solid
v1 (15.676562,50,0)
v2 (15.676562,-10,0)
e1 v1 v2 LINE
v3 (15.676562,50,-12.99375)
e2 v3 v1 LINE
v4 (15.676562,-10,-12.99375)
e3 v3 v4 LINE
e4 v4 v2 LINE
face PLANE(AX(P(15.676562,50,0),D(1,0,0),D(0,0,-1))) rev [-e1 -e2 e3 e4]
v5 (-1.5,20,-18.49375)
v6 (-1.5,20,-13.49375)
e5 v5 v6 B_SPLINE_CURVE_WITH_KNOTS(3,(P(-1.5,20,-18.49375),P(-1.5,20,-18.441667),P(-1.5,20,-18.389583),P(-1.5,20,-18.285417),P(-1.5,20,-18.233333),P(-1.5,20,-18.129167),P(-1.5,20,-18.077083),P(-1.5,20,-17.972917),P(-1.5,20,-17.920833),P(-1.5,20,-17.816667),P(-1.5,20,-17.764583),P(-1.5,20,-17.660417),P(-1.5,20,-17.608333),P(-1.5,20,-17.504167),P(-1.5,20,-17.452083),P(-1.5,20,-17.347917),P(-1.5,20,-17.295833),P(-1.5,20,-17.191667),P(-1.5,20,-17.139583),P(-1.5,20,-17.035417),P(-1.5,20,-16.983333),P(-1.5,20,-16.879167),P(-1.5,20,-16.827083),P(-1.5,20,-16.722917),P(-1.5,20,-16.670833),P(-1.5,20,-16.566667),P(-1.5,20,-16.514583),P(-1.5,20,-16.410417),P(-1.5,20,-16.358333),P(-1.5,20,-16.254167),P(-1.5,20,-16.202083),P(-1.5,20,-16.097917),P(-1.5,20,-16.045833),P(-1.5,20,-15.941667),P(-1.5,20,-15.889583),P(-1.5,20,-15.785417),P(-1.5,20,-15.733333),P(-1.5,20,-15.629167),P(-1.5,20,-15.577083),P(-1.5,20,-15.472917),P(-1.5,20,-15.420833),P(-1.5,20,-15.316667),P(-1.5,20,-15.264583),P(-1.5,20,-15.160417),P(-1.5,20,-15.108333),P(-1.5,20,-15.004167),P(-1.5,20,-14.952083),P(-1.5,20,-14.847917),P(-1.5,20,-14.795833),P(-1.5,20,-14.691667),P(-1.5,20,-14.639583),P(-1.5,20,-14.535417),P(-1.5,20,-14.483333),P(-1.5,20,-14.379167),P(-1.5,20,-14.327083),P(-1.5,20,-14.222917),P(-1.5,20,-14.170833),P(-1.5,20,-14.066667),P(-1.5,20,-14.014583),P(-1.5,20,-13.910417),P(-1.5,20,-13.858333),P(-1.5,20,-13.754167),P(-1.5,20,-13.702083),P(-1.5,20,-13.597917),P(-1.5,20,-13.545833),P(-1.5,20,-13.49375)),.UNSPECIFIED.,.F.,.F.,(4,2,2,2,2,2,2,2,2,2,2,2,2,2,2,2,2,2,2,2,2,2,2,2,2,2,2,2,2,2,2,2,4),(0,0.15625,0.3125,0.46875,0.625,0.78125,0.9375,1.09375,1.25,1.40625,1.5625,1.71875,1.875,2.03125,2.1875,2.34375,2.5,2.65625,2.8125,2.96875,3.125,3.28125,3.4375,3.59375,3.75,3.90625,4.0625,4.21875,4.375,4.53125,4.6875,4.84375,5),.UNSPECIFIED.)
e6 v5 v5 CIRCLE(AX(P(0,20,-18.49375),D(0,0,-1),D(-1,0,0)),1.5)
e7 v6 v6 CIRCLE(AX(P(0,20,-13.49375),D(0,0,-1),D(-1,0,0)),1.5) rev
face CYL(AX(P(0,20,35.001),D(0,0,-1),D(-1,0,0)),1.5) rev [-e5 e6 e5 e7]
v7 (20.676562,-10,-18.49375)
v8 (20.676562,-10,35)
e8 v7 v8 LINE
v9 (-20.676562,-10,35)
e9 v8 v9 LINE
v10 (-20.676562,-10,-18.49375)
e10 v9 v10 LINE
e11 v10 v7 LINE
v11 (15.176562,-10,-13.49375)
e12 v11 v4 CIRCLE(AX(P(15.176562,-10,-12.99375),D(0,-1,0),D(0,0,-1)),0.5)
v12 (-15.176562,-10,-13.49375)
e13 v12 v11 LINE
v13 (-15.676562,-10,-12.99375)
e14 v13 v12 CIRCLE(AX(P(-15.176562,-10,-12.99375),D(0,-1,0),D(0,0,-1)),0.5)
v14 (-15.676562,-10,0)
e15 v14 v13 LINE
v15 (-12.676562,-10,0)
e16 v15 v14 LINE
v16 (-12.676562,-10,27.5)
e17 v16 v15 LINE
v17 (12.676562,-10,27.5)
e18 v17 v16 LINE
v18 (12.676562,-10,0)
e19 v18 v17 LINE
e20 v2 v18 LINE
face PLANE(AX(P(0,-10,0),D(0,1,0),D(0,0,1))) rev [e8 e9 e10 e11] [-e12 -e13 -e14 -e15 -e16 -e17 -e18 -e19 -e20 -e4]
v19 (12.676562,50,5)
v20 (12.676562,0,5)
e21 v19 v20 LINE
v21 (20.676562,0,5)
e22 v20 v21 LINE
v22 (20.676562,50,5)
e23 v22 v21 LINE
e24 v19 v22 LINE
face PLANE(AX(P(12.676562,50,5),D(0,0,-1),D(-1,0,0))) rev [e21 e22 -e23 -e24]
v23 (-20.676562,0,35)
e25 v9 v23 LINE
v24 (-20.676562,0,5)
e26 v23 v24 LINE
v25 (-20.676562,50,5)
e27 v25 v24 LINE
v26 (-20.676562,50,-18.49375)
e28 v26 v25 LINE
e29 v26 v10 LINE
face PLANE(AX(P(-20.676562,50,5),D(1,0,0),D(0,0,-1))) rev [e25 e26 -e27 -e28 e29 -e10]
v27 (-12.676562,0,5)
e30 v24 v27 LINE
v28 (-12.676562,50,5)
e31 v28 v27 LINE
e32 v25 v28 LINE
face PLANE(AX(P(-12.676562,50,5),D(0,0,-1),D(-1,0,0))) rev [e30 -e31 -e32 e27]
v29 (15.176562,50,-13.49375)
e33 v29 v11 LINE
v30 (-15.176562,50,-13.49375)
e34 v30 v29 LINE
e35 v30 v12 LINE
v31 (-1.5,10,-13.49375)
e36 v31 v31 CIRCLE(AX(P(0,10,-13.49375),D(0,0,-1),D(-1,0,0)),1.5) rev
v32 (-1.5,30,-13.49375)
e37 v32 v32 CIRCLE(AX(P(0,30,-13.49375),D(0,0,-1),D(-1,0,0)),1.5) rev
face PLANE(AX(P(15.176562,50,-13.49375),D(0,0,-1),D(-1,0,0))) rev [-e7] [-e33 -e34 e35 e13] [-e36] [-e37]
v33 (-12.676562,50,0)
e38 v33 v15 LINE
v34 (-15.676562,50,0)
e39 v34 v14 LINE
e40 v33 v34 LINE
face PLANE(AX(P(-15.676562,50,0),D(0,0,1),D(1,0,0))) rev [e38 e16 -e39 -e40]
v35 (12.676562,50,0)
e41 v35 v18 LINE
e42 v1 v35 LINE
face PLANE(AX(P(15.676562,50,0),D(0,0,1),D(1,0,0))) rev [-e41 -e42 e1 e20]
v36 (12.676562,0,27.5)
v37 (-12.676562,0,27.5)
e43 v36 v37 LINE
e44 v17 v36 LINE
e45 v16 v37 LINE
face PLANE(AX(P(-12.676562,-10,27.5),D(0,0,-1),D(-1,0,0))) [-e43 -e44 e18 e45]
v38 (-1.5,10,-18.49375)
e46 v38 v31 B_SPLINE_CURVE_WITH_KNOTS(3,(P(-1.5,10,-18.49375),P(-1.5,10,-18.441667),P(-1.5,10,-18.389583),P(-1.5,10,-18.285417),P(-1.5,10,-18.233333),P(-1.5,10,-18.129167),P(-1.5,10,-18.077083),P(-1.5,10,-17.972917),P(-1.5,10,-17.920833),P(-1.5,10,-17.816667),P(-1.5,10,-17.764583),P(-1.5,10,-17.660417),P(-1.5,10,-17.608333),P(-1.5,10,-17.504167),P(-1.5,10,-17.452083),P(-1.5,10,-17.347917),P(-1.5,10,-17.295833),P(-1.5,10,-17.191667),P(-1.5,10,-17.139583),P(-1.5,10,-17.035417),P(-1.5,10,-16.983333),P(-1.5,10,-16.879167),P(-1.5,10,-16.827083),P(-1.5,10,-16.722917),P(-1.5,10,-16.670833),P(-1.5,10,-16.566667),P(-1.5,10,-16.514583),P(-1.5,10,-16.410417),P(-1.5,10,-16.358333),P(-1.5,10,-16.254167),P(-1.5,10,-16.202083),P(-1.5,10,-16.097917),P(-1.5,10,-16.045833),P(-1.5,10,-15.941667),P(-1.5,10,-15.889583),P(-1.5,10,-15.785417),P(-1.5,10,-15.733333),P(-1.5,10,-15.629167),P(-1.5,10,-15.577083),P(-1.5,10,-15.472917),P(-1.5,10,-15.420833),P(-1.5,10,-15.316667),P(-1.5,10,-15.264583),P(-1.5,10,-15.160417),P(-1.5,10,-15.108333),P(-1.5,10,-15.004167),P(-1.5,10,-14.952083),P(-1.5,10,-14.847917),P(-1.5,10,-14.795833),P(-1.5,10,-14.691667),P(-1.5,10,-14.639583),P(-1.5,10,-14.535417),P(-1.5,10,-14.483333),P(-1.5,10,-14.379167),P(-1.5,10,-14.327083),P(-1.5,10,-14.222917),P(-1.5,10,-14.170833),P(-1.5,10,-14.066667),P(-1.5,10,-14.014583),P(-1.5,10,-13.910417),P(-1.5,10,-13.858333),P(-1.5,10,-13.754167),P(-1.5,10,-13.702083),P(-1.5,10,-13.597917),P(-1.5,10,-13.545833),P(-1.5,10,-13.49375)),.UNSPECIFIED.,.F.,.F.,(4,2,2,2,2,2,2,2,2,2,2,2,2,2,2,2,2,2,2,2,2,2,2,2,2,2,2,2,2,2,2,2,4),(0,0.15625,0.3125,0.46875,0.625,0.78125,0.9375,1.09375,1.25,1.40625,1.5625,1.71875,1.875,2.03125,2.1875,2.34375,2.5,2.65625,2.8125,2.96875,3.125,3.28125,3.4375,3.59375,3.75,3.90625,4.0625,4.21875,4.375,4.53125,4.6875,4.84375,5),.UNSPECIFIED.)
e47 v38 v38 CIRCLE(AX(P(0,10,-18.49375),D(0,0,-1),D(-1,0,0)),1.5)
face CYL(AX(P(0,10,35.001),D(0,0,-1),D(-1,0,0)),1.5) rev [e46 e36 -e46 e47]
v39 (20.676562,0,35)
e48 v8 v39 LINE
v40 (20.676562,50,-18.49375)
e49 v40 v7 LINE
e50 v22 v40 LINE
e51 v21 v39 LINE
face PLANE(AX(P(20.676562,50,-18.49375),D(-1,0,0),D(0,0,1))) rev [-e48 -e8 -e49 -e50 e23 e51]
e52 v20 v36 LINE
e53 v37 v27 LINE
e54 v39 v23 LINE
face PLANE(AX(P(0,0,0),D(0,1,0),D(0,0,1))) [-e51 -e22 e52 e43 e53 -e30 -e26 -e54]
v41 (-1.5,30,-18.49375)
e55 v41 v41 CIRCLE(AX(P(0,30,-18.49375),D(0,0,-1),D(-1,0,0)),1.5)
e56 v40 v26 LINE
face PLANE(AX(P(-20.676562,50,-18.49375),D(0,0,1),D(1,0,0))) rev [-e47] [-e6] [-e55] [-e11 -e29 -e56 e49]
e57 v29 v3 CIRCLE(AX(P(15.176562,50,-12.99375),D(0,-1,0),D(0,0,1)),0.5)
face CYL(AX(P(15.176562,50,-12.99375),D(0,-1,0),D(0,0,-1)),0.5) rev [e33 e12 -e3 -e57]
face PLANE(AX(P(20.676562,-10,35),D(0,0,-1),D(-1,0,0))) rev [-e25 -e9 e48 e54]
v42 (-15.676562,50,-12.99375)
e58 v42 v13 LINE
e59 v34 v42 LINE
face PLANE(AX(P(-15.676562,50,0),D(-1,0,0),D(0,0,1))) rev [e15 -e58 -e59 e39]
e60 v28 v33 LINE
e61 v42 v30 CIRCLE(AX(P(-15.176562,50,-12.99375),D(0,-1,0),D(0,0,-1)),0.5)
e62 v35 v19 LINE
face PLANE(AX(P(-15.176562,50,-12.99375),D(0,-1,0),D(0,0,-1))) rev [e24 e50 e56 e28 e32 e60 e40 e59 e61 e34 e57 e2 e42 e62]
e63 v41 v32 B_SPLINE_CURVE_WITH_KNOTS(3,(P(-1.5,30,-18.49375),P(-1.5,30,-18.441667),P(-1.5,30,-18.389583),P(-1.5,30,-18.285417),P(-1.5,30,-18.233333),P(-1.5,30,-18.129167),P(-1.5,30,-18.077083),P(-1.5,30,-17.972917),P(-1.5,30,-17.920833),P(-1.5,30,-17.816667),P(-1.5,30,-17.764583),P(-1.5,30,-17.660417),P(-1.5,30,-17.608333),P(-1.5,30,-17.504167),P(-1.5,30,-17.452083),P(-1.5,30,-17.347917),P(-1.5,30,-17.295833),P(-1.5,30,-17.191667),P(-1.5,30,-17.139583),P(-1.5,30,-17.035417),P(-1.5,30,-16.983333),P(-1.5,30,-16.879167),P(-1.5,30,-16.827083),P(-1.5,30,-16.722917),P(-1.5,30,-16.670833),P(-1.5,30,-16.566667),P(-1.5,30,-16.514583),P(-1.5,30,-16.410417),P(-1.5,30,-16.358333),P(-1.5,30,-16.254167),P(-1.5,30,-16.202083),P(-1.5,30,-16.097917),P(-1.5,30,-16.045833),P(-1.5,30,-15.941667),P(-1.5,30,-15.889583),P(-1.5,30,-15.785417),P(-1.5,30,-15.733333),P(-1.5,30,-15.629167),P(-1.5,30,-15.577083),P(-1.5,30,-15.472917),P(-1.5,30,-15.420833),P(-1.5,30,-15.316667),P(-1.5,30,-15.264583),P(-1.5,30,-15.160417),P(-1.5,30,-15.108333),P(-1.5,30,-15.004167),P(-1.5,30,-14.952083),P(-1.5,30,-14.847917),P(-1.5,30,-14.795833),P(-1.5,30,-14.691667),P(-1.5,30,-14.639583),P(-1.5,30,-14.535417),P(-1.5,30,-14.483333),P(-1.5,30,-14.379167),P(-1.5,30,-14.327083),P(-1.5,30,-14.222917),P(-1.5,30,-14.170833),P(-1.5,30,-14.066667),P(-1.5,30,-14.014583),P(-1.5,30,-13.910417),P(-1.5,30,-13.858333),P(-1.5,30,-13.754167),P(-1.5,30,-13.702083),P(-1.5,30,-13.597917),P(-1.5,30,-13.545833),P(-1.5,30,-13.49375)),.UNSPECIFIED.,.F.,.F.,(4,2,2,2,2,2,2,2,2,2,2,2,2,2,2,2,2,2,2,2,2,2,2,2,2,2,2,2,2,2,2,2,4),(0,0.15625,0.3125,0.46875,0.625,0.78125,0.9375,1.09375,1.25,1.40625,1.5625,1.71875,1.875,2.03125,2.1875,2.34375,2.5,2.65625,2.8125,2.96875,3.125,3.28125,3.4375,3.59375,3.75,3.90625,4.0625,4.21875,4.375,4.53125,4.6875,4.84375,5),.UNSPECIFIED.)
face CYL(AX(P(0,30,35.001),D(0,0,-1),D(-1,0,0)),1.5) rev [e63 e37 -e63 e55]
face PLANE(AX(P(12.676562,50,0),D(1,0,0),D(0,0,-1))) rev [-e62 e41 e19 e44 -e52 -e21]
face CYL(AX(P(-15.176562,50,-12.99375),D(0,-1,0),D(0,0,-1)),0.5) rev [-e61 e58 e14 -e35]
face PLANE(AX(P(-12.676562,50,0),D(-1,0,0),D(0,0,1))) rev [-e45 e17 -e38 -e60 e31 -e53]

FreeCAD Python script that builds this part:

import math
import FreeCAD as App
import Part
import Sketcher
from FreeCAD import Vector

doc = App.newDocument("Part")
body = doc.addObject("PartDesign::Body", "Body")

sketch1 = body.newObject("Sketcher::SketchObject", "Sketch")
sketch1.AttachmentSupport = (doc.getObject("XZ_Plane"), [""])
sketch1.MapMode = "FlatFace"
sketch1.addGeometry([
    Part.LineSegment(Vector(15.676562, -12.99375, 0), Vector(15.676562, 0, 0)),
    Part.LineSegment(Vector(15.676562, 0, 0), Vector(12.676562, 0, 0)),
    Part.LineSegment(Vector(12.676562, 0, 0), Vector(12.676562, 5, 0)),
    Part.LineSegment(Vector(12.676562, 5, 0), Vector(20.676562, 5, 0)),
    Part.LineSegment(Vector(20.676562, 5, 0), Vector(20.676562, -18.49375, 0)),
    Part.LineSegment(Vector(20.676562, -18.49375, 0), Vector(-20.676562, -18.49375, 0)),
    Part.LineSegment(Vector(-20.676562, -18.49375, 0), Vector(-20.676562, 5, 0)),
    Part.LineSegment(Vector(-20.676562, 5, 0), Vector(-12.676562, 5, 0)),
    Part.LineSegment(Vector(-12.676562, 5, 0), Vector(-12.676562, 0, 0)),
    Part.LineSegment(Vector(-12.676562, 0, 0), Vector(-15.676562, 0, 0)),
    Part.LineSegment(Vector(-15.676562, 0, 0), Vector(-15.676562, -12.99375, 0)),
    Part.ArcOfCircle(Part.Circle(Vector(-15.176563, -12.99375, 0), Vector(0, 0, 1), 0.5), math.radians(180), math.radians(270)),
    Part.LineSegment(Vector(-15.176562, -13.49375, 0), Vector(15.176562, -13.49375, 0)),
    Part.ArcOfCircle(Part.Circle(Vector(15.176563, -12.99375, 0), Vector(0, 0, 1), 0.5), math.radians(-90), math.radians(0)),
], False)
sketch1.addConstraint([
    Sketcher.Constraint("Coincident", 0, 2, 1, 1),
    Sketcher.Constraint("Coincident", 1, 2, 2, 1),
    Sketcher.Constraint("Coincident", 2, 2, 3, 1),
    Sketcher.Constraint("Coincident", 3, 2, 4, 1),
    Sketcher.Constraint("Coincident", 4, 2, 5, 1),
    Sketcher.Constraint("Coincident", 5, 2, 6, 1),
    Sketcher.Constraint("Coincident", 6, 2, 7, 1),
    Sketcher.Constraint("Coincident", 7, 2, 8, 1),
    Sketcher.Constraint("Coincident", 8, 2, 9, 1),
    Sketcher.Constraint("Coincident", 9, 2, 10, 1),
    Sketcher.Constraint("Tangent", 10, 2, 11, 1),
    Sketcher.Constraint("Tangent", 11, 2, 12, 1),
    Sketcher.Constraint("Tangent", 12, 2, 13, 1),
    Sketcher.Constraint("Tangent", 13, 2, 0, 1),
    Sketcher.Constraint("Vertical", 0),
    Sketcher.Constraint("Horizontal", 1),
    Sketcher.Constraint("Vertical", 2),
    Sketcher.Constraint("Horizontal", 3),
    Sketcher.Constraint("Vertical", 4),
    Sketcher.Constraint("Horizontal", 5),
    Sketcher.Constraint("Vertical", 6),
    Sketcher.Constraint("Horizontal", 7),
    Sketcher.Constraint("Vertical", 8),
    Sketcher.Constraint("Horizontal", 9),
    Sketcher.Constraint("Vertical", 10),
    Sketcher.Constraint("Horizontal", 12),
    Sketcher.Constraint("Equal", 11, 13),
    Sketcher.Constraint("Symmetric", 1, 2, 8, 2, -1, 1),
    Sketcher.Constraint("Symmetric", 3, 2, 6, 2, -2),
    Sketcher.Constraint("Symmetric", 0, 2, 9, 2, -2),
    Sketcher.Constraint("Radius", 11, 0.5),
    Sketcher.Constraint("DistanceX", 1, 2, 1, 1, 3.0),
    Sketcher.Constraint("DistanceX", 3, 1, 3, 2, 8.0),
    Sketcher.Constraint("DistanceY", 2, 1, 2, 2, 5.0),
    Sketcher.Constraint("DistanceY", 5, 2, 11, 2, 5.0),
    Sketcher.Constraint("DistanceY", 0, 1, 0, 2, 12.99375),
    Sketcher.Constraint("DistanceX", 5, 2, 5, 1, 41.353125),
])
pad1 = body.newObject("PartDesign::Pad", "Pad")
pad1.Profile = sketch1
pad1.Length = 50
pad1.Reversed = True

sketch2 = body.newObject("Sketcher::SketchObject", "Sketch001")
sketch2.AttachmentSupport = (doc.getObject("XZ_Plane"), [""])
sketch2.MapMode = "FlatFace"
sketch2.AttachmentOffset = App.Placement(Vector(0, 0, 10), App.Rotation())
sketch2.addGeometry([
    Part.LineSegment(Vector(-20.676562, 35, 0), Vector(-20.676562, -18.49375, 0)),
    Part.LineSegment(Vector(-20.676562, -18.49375, 0), Vector(20.676562, -18.49375, 0)),
    Part.LineSegment(Vector(20.676562, -18.49375, 0), Vector(20.676562, 35, 0)),
    Part.LineSegment(Vector(20.676562, 35, 0), Vector(-20.676562, 35, 0)),
    Part.LineSegment(Vector(-12.676562, 0, 0), Vector(-12.676562, 27.5, 0)),
    Part.LineSegment(Vector(-12.676562, 27.5, 0), Vector(12.676562, 27.5, 0)),
    Part.LineSegment(Vector(12.676562, 27.5, 0), Vector(12.676562, 0, 0)),
    Part.LineSegment(Vector(12.676562, 0, 0), Vector(15.676562, 0, 0)),
    Part.LineSegment(Vector(15.676562, 0, 0), Vector(15.676562, -12.99375, 0)),
    Part.ArcOfCircle(Part.Circle(Vector(15.176563, -12.99375, 0), Vector(0, 0, 1), 0.5), math.radians(-90), math.radians(0)),
    Part.LineSegment(Vector(15.176562, -13.49375, 0), Vector(-15.176562, -13.49375, 0)),
    Part.ArcOfCircle(Part.Circle(Vector(-15.176563, -12.99375, 0), Vector(0, 0, 1), 0.5), math.radians(180), math.radians(270)),
    Part.LineSegment(Vector(-15.676562, -12.99375, 0), Vector(-15.676562, 0, 0)),
    Part.LineSegment(Vector(-15.676562, 0, 0), Vector(-12.676562, 0, 0)),
], False)
sketch2.addConstraint([
    Sketcher.Constraint("Coincident", 0, 2, 1, 1),
    Sketcher.Constraint("Coincident", 1, 2, 2, 1),
    Sketcher.Constraint("Coincident", 2, 2, 3, 1),
    Sketcher.Constraint("Coincident", 3, 2, 0, 1),
    Sketcher.Constraint("Coincident", 4, 2, 5, 1),
    Sketcher.Constraint("Coincident", 5, 2, 6, 1),
    Sketcher.Constraint("Coincident", 6, 2, 7, 1),
    Sketcher.Constraint("Coincident", 7, 2, 8, 1),
    Sketcher.Constraint("Tangent", 8, 2, 9, 2),
    Sketcher.Constraint("Tangent", 9, 1, 10, 1),
    Sketcher.Constraint("Tangent", 10, 2, 11, 2),
    Sketcher.Constraint("Tangent", 11, 1, 12, 1),
    Sketcher.Constraint("Coincident", 12, 2, 13, 1),
    Sketcher.Constraint("Coincident", 13, 2, 4, 1),
    Sketcher.Constraint("Vertical", 0),
    Sketcher.Constraint("Horizontal", 1),
    Sketcher.Constraint("Vertical", 2),
    Sketcher.Constraint("Horizontal", 3),
    Sketcher.Constraint("Vertical", 4),
    Sketcher.Constraint("Horizontal", 5),
    Sketcher.Constraint("Vertical", 6),
    Sketcher.Constraint("Horizontal", 7),
    Sketcher.Constraint("Vertical", 8),
    Sketcher.Constraint("Horizontal", 10),
    Sketcher.Constraint("Vertical", 12),
    Sketcher.Constraint("Horizontal", 13),
    Sketcher.Constraint("Equal", 9, 11),
    Sketcher.Constraint("Symmetric", 7, 2, 12, 2, -1, 1),
    Sketcher.Constraint("Symmetric", 6, 2, 13, 2, -2),
    Sketcher.Constraint("Radius", 9, 0.5),
    Sketcher.Constraint("DistanceX", 7, 1, 7, 2, 3.0),
    Sketcher.Constraint("DistanceY", 4, 1, 4, 2, 27.5),
    Sketcher.Constraint("DistanceY", -1, 1, 2, 2, 35.0),
    Sketcher.Constraint("DistanceX", 3, 2, 4, 2, 8.0),
    Sketcher.Constraint("DistanceX", 5, 2, 2, 2, 8.0),
    Sketcher.Constraint("DistanceY", 1, 2, 9, 1, 5.0),
    Sketcher.Constraint("DistanceY", 0, 2, 0, 1, 53.49375),
    Sketcher.Constraint("DistanceX", 1, 1, 1, 2, 41.353125),
])
pad2 = body.newObject("PartDesign::Pad", "Pad001")
pad2.Profile = sketch2
pad2.Length = 10
pad2.Reversed = True

sketch3 = body.newObject("Sketcher::SketchObject", "Sketch002")
sketch3.AttachmentSupport = (doc.getObject("XY_Plane"), [""])
sketch3.MapMode = "FlatFace"
sketch3.AttachmentOffset = App.Placement(Vector(0, 0, -18.49375), App.Rotation())
sketch3.addGeometry(Part.Circle(Vector(0, 10, 0), Vector(0, 0, 1), 1.5), False)
sketch3.addConstraint([
    Sketcher.Constraint("PointOnObject", 0, 3, -2),
    Sketcher.Constraint("Diameter", 0, 3.0),
    Sketcher.Constraint("DistanceY", -1, 1, 0, 3, 10.0),
])
pocket1 = body.newObject("PartDesign::Pocket", "Pocket")
pocket1.Profile = sketch3
pocket1.Type = "UpToFirst"
pocket1.Reversed = True

sketch4 = body.newObject("Sketcher::SketchObject", "Sketch003")
sketch4.AttachmentSupport = (doc.getObject("XY_Plane"), [""])
sketch4.MapMode = "FlatFace"
sketch4.AttachmentOffset = App.Placement(Vector(0, 0, -18.49375), App.Rotation())
sketch4.addGeometry(Part.Circle(Vector(0, 20, 0), Vector(0, 0, 1), 1.5), False)
sketch4.addConstraint([
    Sketcher.Constraint("PointOnObject", 0, 3, -2),
    Sketcher.Constraint("Diameter", 0, 3.0),
    Sketcher.Constraint("DistanceY", -1, 1, 0, 3, 20.0),
])
pocket2 = body.newObject("PartDesign::Pocket", "Pocket001")
pocket2.Profile = sketch4
pocket2.Type = "UpToFirst"
pocket2.Reversed = True

sketch5 = body.newObject("Sketcher::SketchObject", "Sketch004")
sketch5.AttachmentSupport = (doc.getObject("XY_Plane"), [""])
sketch5.MapMode = "FlatFace"
sketch5.AttachmentOffset = App.Placement(Vector(0, 0, -18.49375), App.Rotation())
sketch5.addGeometry(Part.Circle(Vector(0, 30, 0), Vector(0, 0, 1), 1.5), False)
sketch5.addConstraint([
    Sketcher.Constraint("PointOnObject", 0, 3, -2),
    Sketcher.Constraint("Diameter", 0, 3.0),
    Sketcher.Constraint("DistanceY", -1, 1, 0, 3, 30.0),
])
pocket3 = body.newObject("PartDesign::Pocket", "Pocket002")
pocket3.Profile = sketch5
pocket3.Type = "UpToFirst"
pocket3.Reversed = True

doc.recompute()
